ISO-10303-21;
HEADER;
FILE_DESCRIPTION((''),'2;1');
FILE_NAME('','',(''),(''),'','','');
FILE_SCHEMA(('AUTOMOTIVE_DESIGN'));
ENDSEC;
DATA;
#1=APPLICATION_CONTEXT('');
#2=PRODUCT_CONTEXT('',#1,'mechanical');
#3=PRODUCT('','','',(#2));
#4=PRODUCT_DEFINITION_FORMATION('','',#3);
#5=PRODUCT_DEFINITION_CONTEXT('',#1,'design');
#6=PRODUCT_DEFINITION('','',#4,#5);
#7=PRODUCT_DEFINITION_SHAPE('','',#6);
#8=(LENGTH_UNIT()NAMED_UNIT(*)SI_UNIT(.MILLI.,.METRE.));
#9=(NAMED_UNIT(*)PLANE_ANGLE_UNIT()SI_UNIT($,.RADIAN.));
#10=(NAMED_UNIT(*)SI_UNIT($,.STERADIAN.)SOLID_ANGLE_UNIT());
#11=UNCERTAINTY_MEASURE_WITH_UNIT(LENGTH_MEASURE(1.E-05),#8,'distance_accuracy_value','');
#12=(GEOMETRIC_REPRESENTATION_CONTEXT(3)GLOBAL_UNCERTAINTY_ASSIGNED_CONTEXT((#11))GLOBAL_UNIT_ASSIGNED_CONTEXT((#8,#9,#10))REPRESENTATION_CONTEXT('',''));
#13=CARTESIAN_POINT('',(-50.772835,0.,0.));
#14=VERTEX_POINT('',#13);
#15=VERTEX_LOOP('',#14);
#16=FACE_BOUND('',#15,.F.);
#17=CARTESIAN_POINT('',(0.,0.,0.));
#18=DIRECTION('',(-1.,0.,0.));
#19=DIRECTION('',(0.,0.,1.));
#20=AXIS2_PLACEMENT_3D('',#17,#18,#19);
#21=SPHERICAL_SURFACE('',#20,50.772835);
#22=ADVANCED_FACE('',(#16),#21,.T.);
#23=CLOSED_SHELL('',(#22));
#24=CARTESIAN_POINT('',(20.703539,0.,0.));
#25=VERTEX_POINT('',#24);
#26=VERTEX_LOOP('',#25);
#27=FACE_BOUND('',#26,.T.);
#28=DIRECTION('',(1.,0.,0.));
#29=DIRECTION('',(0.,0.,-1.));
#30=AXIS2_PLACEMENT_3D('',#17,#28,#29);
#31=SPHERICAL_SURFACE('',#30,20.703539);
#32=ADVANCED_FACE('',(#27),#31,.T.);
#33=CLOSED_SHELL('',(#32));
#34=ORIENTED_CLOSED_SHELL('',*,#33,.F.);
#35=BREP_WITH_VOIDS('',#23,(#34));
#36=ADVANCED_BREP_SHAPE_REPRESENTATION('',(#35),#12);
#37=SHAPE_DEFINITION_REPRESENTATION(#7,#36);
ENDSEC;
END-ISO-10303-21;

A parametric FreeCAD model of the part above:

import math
import FreeCAD as App
import Part
import Sketcher
from FreeCAD import Vector

doc = App.newDocument("Part")
body = doc.addObject("PartDesign::Body", "Body")

# Sketch on XZ plane
sketch1 = body.newObject("Sketcher::SketchObject", "Sketch")
sketch1.AttachmentSupport = (doc.getObject("XZ_Plane"), [""])
sketch1.MapMode = "FlatFace"
sketch1.addGeometry([
    Part.LineSegment(Vector(20.703539, 0, 0), Vector(50.772835, 0, 0)),
    Part.ArcOfCircle(Part.Circle(Vector(0, 0, 0), Vector(0, 0, 1), 50.772835), math.radians(0), math.radians(180)),
    Part.LineSegment(Vector(-50.772835, 0, 0), Vector(-20.703539, 0, 0)),
    Part.ArcOfCircle(Part.Circle(Vector(0, 0, 0), Vector(0, 0, 1), 20.703539), math.radians(180), math.radians(360)),
], False)
sketch1.addConstraint([
    Sketcher.Constraint("Coincident", 0, 2, 1, 1),
    Sketcher.Constraint("Coincident", 1, 2, 2, 1),
    Sketcher.Constraint("Coincident", 2, 2, 3, 1),
    Sketcher.Constraint("Coincident", 3, 2, 0, 1),
    Sketcher.Constraint("Horizontal", 0),
    Sketcher.Constraint("Horizontal", 2),
    Sketcher.Constraint("Coincident", 1, 3, -1, 1),
    Sketcher.Constraint("Coincident", 3, 3, -1, 1),
    Sketcher.Constraint("PointOnObject", 0, 2, -1),
    Sketcher.Constraint("PointOnObject", 1, 2, -1),
    Sketcher.Constraint("Radius", 3, 20.703539),
    Sketcher.Constraint("Radius", 1, 50.772835),
])
revolution = body.newObject("PartDesign::Revolution", "Revolution")
revolution.Profile = sketch1
revolution.ReferenceAxis = (sketch1, ["H_Axis"])
revolution.Angle = 360

doc.recompute()
